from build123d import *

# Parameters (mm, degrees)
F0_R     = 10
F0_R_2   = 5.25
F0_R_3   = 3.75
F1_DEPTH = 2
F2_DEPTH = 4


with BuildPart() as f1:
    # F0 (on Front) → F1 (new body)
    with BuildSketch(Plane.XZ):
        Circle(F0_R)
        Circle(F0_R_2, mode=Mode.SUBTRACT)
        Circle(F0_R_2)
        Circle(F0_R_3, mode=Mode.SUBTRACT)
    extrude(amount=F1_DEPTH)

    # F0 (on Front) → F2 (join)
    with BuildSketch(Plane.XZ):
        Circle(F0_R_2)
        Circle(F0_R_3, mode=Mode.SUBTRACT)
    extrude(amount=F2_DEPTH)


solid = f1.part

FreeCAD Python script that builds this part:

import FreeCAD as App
import Part
import Sketcher
from FreeCAD import Vector

doc = App.newDocument("Part")
params = doc.addObject("Spreadsheet::Sheet", "Params")
for row, (alias, value) in enumerate([
    ("sketch1_diameter", "20 mm"),
    ("sketch1_diameter2", "7.5 mm"),
    ("pad1_length", "2 mm"),
    ("sketch2_diameter", "10.5 mm"),
    ("sketch2_diameter2", "7.5 mm"),
    ("pad2_length", "4 mm"),
], start=1):
    params.set(f"A{row}", alias)
    params.set(f"B{row}", "=" + value)
    params.setAlias(f"B{row}", alias)

body = doc.addObject("PartDesign::Body", "Body")

# Sketch on XZ plane
sketch1 = body.newObject("Sketcher::SketchObject", "Sketch")
sketch1.AttachmentSupport = (doc.getObject("XZ_Plane"), [""])
sketch1.MapMode = "FlatFace"
sketch1.addGeometry([
    Part.Circle(Vector(0, 0, 0), Vector(0, 0, 1), 10),
    Part.Circle(Vector(0, 0, 0), Vector(0, 0, 1), 3.8),
], False)
sketch1.addConstraint([
    Sketcher.Constraint("Coincident", 0, 3, -1, 1),
    Sketcher.Constraint("Coincident", 1, 3, -1, 1),
    Sketcher.Constraint("Diameter", 0, 20.0),
    Sketcher.Constraint("Diameter", 1, 7.5),
])
sketch1.setExpression("Constraints[2]", "Params.sketch1_diameter")
sketch1.setExpression("Constraints[3]", "Params.sketch1_diameter2")
pad1 = body.newObject("PartDesign::Pad", "Pad")
pad1.Profile = sketch1
pad1.setExpression("Length", "Params.pad1_length")

# Sketch on XZ plane
sketch2 = body.newObject("Sketcher::SketchObject", "Sketch001")
sketch2.AttachmentSupport = (doc.getObject("XZ_Plane"), [""])
sketch2.MapMode = "FlatFace"
sketch2.addGeometry([
    Part.Circle(Vector(0, 0, 0), Vector(0, 0, 1), 5.2),
    Part.Circle(Vector(0, 0, 0), Vector(0, 0, 1), 3.8),
], False)
sketch2.addConstraint([
    Sketcher.Constraint("Coincident", 0, 3, -1, 1),
    Sketcher.Constraint("Coincident", 1, 3, -1, 1),
    Sketcher.Constraint("Diameter", 0, 10.5),
    Sketcher.Constraint("Diameter", 1, 7.5),
])
sketch2.setExpression("Constraints[2]", "Params.sketch2_diameter")
sketch2.setExpression("Constraints[3]", "Params.sketch2_diameter2")
pad2 = body.newObject("PartDesign::Pad", "Pad001")
pad2.Profile = sketch2
pad2.setExpression("Length", "Params.pad2_length")

doc.recompute()
